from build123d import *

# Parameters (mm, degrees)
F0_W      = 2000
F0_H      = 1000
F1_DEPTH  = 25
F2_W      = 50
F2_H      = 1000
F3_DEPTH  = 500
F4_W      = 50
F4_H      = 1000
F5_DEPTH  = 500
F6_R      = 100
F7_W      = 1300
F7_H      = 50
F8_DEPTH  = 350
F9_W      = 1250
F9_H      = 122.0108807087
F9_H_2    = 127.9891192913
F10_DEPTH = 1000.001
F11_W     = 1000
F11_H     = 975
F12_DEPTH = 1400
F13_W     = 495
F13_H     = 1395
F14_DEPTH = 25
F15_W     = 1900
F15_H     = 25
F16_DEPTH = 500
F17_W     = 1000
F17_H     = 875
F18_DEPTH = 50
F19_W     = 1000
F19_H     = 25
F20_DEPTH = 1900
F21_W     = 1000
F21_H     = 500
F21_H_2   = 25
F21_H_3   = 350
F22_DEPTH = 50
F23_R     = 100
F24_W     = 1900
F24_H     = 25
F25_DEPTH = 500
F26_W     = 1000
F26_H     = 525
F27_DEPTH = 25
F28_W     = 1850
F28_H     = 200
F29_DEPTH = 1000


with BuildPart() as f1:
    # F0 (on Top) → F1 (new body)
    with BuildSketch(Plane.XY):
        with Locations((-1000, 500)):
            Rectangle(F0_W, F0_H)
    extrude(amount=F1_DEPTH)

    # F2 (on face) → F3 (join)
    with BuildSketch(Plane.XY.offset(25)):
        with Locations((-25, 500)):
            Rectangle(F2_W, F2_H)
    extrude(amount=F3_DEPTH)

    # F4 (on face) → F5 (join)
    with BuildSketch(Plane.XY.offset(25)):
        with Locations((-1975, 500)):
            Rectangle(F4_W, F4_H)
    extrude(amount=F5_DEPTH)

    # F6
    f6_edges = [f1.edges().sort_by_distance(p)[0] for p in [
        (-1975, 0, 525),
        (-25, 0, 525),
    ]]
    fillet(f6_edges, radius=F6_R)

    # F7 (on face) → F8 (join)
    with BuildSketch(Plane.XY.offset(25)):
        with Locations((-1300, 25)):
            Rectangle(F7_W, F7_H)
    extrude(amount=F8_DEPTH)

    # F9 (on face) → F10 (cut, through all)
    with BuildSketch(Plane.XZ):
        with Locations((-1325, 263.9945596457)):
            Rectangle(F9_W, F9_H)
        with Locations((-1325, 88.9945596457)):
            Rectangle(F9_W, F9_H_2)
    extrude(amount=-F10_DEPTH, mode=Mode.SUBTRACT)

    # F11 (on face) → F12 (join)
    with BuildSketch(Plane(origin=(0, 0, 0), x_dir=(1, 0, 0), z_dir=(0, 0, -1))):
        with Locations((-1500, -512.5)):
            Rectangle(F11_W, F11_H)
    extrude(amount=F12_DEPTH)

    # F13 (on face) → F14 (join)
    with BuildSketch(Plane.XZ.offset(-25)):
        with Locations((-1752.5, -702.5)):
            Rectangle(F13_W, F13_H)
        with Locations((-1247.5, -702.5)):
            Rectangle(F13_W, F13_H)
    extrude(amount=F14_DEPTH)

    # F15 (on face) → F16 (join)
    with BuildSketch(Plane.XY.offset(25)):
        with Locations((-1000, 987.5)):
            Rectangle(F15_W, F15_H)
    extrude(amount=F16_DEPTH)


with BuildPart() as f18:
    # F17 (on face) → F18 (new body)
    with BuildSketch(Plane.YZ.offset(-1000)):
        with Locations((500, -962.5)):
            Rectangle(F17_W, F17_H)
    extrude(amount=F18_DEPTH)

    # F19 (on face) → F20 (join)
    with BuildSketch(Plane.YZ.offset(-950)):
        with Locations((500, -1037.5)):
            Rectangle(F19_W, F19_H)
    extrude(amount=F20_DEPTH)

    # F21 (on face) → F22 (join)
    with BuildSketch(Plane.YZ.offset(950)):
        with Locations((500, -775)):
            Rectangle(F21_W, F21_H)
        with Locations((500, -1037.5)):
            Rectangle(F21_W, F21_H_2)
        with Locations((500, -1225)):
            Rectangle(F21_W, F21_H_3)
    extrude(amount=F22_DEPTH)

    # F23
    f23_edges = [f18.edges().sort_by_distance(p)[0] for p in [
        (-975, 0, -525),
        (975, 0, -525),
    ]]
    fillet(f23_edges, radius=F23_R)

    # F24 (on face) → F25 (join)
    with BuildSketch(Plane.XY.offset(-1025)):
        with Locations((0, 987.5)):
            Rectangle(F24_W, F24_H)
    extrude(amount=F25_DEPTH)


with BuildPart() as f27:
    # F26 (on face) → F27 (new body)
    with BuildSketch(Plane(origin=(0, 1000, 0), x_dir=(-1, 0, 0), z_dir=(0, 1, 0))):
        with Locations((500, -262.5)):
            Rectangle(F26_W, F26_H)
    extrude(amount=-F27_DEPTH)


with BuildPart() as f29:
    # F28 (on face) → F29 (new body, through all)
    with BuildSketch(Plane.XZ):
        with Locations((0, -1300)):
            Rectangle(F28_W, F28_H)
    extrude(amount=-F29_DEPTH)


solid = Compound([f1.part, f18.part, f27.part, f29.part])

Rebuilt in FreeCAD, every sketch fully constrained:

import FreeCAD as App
import Part
import Sketcher

V = App.Vector


def edges_at(feature, points):
    """Names of the edges that pass closest to the given points."""
    edges = feature.Shape.Edges
    near = lambda p: min(range(len(edges)), key=lambda i: edges[i].distToShape(Part.Vertex(*p))[0])
    return sorted({f"Edge{near(p) + 1}" for p in points})

doc = App.newDocument("Part")
body = doc.addObject("PartDesign::Body", "Body")

# Sketch on XY plane
sketch1 = doc.addObject("Sketcher::SketchObject", "Sketch")
body.addObject(sketch1)
sketch1.AttachmentSupport = (doc.XY_Plane, [""])
sketch1.MapMode = "FlatFace"
sketch1.addGeometry([
    Part.LineSegment(V(-2000, 1000, 0), V(-2000, 0, 0)),
    Part.LineSegment(V(-2000, 0, 0), V(0, 0, 0)),
    Part.LineSegment(V(0, 0, 0), V(0, 1000, 0)),
    Part.LineSegment(V(0, 1000, 0), V(-2000, 1000, 0)),
], False)
sketch1.addConstraint([
    Sketcher.Constraint("Coincident", 0, 2, 1, 1),
    Sketcher.Constraint("Coincident", 1, 2, 2, 1),
    Sketcher.Constraint("Coincident", 2, 2, 3, 1),
    Sketcher.Constraint("Coincident", 3, 2, 0, 1),
    Sketcher.Constraint("Vertical", 0),
    Sketcher.Constraint("Horizontal", 1),
    Sketcher.Constraint("Vertical", 2),
    Sketcher.Constraint("Horizontal", 3),
    Sketcher.Constraint("Coincident", 1, 2, -1, 1),
    Sketcher.Constraint("DistanceX", 1, 1, 1, 2, 2000.0),
    Sketcher.Constraint("DistanceY", 0, 2, 0, 1, 1000.0),
])
pad1 = doc.addObject("PartDesign::Pad", "Pad")
body.addObject(pad1)
pad1.Profile = sketch1
pad1.Length = 25

# Sketch on XY plane
sketch2 = doc.addObject("Sketcher::SketchObject", "Sketch001")
body.addObject(sketch2)
sketch2.AttachmentSupport = (doc.XY_Plane, [""])
sketch2.MapMode = "FlatFace"
sketch2.AttachmentOffset = App.Placement(V(0, 0, 25), App.Rotation())
sketch2.addGeometry([
    Part.LineSegment(V(-50, 1000, 0), V(-50, 0, 0)),
    Part.LineSegment(V(-50, 0, 0), V(0, 0, 0)),
    Part.LineSegment(V(0, 0, 0), V(0, 1000, 0)),
    Part.LineSegment(V(0, 1000, 0), V(-50, 1000, 0)),
], False)
sketch2.addConstraint([
    Sketcher.Constraint("Coincident", 0, 2, 1, 1),
    Sketcher.Constraint("Coincident", 1, 2, 2, 1),
    Sketcher.Constraint("Coincident", 2, 2, 3, 1),
    Sketcher.Constraint("Coincident", 3, 2, 0, 1),
    Sketcher.Constraint("Vertical", 0),
    Sketcher.Constraint("Horizontal", 1),
    Sketcher.Constraint("Vertical", 2),
    Sketcher.Constraint("Horizontal", 3),
    Sketcher.Constraint("Coincident", 1, 2, -1, 1),
    Sketcher.Constraint("DistanceX", 1, 1, 1, 2, 50.0),
    Sketcher.Constraint("DistanceY", 0, 2, 0, 1, 1000.0),
])
pad2 = doc.addObject("PartDesign::Pad", "Pad001")
body.addObject(pad2)
pad2.Profile = sketch2
pad2.Length = 500

# Sketch on XY plane
sketch3 = doc.addObject("Sketcher::SketchObject", "Sketch002")
body.addObject(sketch3)
sketch3.AttachmentSupport = (doc.XY_Plane, [""])
sketch3.MapMode = "FlatFace"
sketch3.AttachmentOffset = App.Placement(V(0, 0, 25), App.Rotation())
sketch3.addGeometry([
    Part.LineSegment(V(-2000, 1000, 0), V(-2000, 0, 0)),
    Part.LineSegment(V(-2000, 0, 0), V(-1950, 0, 0)),
    Part.LineSegment(V(-1950, 0, 0), V(-1950, 1000, 0)),
    Part.LineSegment(V(-1950, 1000, 0), V(-2000, 1000, 0)),
], False)
sketch3.addConstraint([
    Sketcher.Constraint("Coincident", 0, 2, 1, 1),
    Sketcher.Constraint("Coincident", 1, 2, 2, 1),
    Sketcher.Constraint("Coincident", 2, 2, 3, 1),
    Sketcher.Constraint("Coincident", 3, 2, 0, 1),
    Sketcher.Constraint("Vertical", 0),
    Sketcher.Constraint("Horizontal", 1),
    Sketcher.Constraint("Vertical", 2),
    Sketcher.Constraint("Horizontal", 3),
    Sketcher.Constraint("PointOnObject", 0, 2, -1),
    Sketcher.Constraint("DistanceX", 1, 1, 1, 2, 50.0),
    Sketcher.Constraint("DistanceY", 0, 2, 0, 1, 1000.0),
    Sketcher.Constraint("DistanceX", 0, 2, -1, 1, 2000.0),
])
pad3 = doc.addObject("PartDesign::Pad", "Pad002")
body.addObject(pad3)
pad3.Profile = sketch3
pad3.Length = 500
doc.recompute()

fillet = doc.addObject("PartDesign::Fillet", "Fillet")
body.addObject(fillet)
fillet.Base = (pad3, edges_at(pad3, [(-1975, 0, 525), (-25, 0, 525)]))
fillet.Radius = 100

# Sketch on XY plane
sketch4 = doc.addObject("Sketcher::SketchObject", "Sketch003")
body.addObject(sketch4)
sketch4.AttachmentSupport = (doc.XY_Plane, [""])
sketch4.MapMode = "FlatFace"
sketch4.AttachmentOffset = App.Placement(V(0, 0, 25), App.Rotation())
sketch4.addGeometry([
    Part.LineSegment(V(-1950, 50, 0), V(-1950, 0, 0)),
    Part.LineSegment(V(-1950, 0, 0), V(-650, 0, 0)),
    Part.LineSegment(V(-650, 0, 0), V(-650, 50, 0)),
    Part.LineSegment(V(-650, 50, 0), V(-1950, 50, 0)),
], False)
sketch4.addConstraint([
    Sketcher.Constraint("Coincident", 0, 2, 1, 1),
    Sketcher.Constraint("Coincident", 1, 2, 2, 1),
    Sketcher.Constraint("Coincident", 2, 2, 3, 1),
    Sketcher.Constraint("Coincident", 3, 2, 0, 1),
    Sketcher.Constraint("Vertical", 0),
    Sketcher.Constraint("Horizontal", 1),
    Sketcher.Constraint("Vertical", 2),
    Sketcher.Constraint("Horizontal", 3),
    Sketcher.Constraint("PointOnObject", 0, 2, -1),
    Sketcher.Constraint("DistanceX", 1, 1, 1, 2, 1300.0),
    Sketcher.Constraint("DistanceY", 0, 2, 0, 1, 50.0),
    Sketcher.Constraint("DistanceX", 0, 2, -1, 1, 1950.0),
])
pad4 = doc.addObject("PartDesign::Pad", "Pad003")
body.addObject(pad4)
pad4.Profile = sketch4
pad4.Length = 350

# Sketch on XZ plane
sketch5 = doc.addObject("Sketcher::SketchObject", "Sketch004")
body.addObject(sketch5)
sketch5.AttachmentSupport = (doc.XZ_Plane, [""])
sketch5.MapMode = "FlatFace"
sketch5.addGeometry([
    Part.LineSegment(V(-1950, 325, 0), V(-1950, 203, 0)),  # 0
    Part.LineSegment(V(-1950, 203, 0), V(-700, 203, 0)),  # 1
    Part.LineSegment(V(-700, 203, 0), V(-700, 325, 0)),  # 2
    Part.LineSegment(V(-700, 325, 0), V(-1950, 325, 0)),  # 3
    Part.LineSegment(V(-1950, 153, 0), V(-1950, 25, 0)),  # 4
    Part.LineSegment(V(-1950, 25, 0), V(-700, 25, 0)),  # 5
    Part.LineSegment(V(-700, 25, 0), V(-700, 153, 0)),  # 6
    Part.LineSegment(V(-700, 153, 0), V(-1950, 153, 0)),  # 7
], False)
sketch5.addConstraint([
    Sketcher.Constraint("Coincident", 0, 2, 1, 1),
    Sketcher.Constraint("Coincident", 1, 2, 2, 1),
    Sketcher.Constraint("Coincident", 2, 2, 3, 1),
    Sketcher.Constraint("Coincident", 3, 2, 0, 1),
    Sketcher.Constraint("Coincident", 4, 2, 5, 1),
    Sketcher.Constraint("Coincident", 5, 2, 6, 1),
    Sketcher.Constraint("Coincident", 6, 2, 7, 1),
    Sketcher.Constraint("Coincident", 7, 2, 4, 1),
    Sketcher.Constraint("Vertical", 0),
    Sketcher.Constraint("Horizontal", 1),
    Sketcher.Constraint("Vertical", 2),
    Sketcher.Constraint("Horizontal", 3),
    Sketcher.Constraint("Vertical", 4),
    Sketcher.Constraint("Horizontal", 5),
    Sketcher.Constraint("Vertical", 6),
    Sketcher.Constraint("Horizontal", 7),
    Sketcher.Constraint("Vertical", 3, 2, 4, 2),
    Sketcher.Constraint("Vertical", 2, 2, 5, 2),
    Sketcher.Constraint("DistanceX", 1, 1, 1, 2, 1250.0),
    Sketcher.Constraint("DistanceX", 0, 2, -1, 1, 1950.0),
    Sketcher.Constraint("DistanceY", -1, 1, 2, 2, 325.0),
    Sketcher.Constraint("DistanceY", -1, 1, 4, 2, 25.0),
    Sketcher.Constraint("DistanceY", 6, 2, 1, 2, 50.0),
    Sketcher.Constraint("DistanceY", 0, 2, 0, 1, 122.010881),
])
pocket1 = doc.addObject("PartDesign::Pocket", "Pocket")
body.addObject(pocket1)
pocket1.Profile = sketch5
pocket1.Type = "ThroughAll"

# Sketch on XY plane
sketch6 = doc.addObject("Sketcher::SketchObject", "Sketch005")
body.addObject(sketch6)
sketch6.AttachmentSupport = (doc.XY_Plane, [""])
sketch6.MapMode = "FlatFace"
sketch6.addGeometry([
    Part.LineSegment(V(-2000, 25, 0), V(-2000, 1000, 0)),
    Part.LineSegment(V(-2000, 1000, 0), V(-1000, 1000, 0)),
    Part.LineSegment(V(-1000, 1000, 0), V(-1000, 25, 0)),
    Part.LineSegment(V(-1000, 25, 0), V(-2000, 25, 0)),
], False)
sketch6.addConstraint([
    Sketcher.Constraint("Coincident", 0, 2, 1, 1),
    Sketcher.Constraint("Coincident", 1, 2, 2, 1),
    Sketcher.Constraint("Coincident", 2, 2, 3, 1),
    Sketcher.Constraint("Coincident", 3, 2, 0, 1),
    Sketcher.Constraint("Vertical", 0),
    Sketcher.Constraint("Horizontal", 1),
    Sketcher.Constraint("Vertical", 2),
    Sketcher.Constraint("Horizontal", 3),
    Sketcher.Constraint("DistanceX", 1, 1, 1, 2, 1000.0),
    Sketcher.Constraint("DistanceY", 0, 1, 0, 2, 975.0),
    Sketcher.Constraint("DistanceX", 0, 2, -1, 1, 2000.0),
    Sketcher.Constraint("DistanceY", -1, 1, 0, 2, 1000.0),
])
pad5 = doc.addObject("PartDesign::Pad", "Pad004")
body.addObject(pad5)
pad5.Profile = sketch6
pad5.Length = 1400
pad5.Reversed = True

# Sketch on XZ plane
sketch7 = doc.addObject("Sketcher::SketchObject", "Sketch006")
body.addObject(sketch7)
sketch7.AttachmentSupport = (doc.XZ_Plane, [""])
sketch7.MapMode = "FlatFace"
sketch7.AttachmentOffset = App.Placement(V(0, 0, -25), App.Rotation())
sketch7.addGeometry([
    Part.LineSegment(V(-2000, -5, 0), V(-2000, -1400, 0)),  # 0
    Part.LineSegment(V(-2000, -1400, 0), V(-1505, -1400, 0)),  # 1
    Part.LineSegment(V(-1505, -1400, 0), V(-1505, -5, 0)),  # 2
    Part.LineSegment(V(-1505, -5, 0), V(-2000, -5, 0)),  # 3
    Part.LineSegment(V(-1495, -5, 0), V(-1495, -1400, 0)),  # 4
    Part.LineSegment(V(-1495, -1400, 0), V(-1000, -1400, 0)),  # 5
    Part.LineSegment(V(-1000, -1400, 0), V(-1000, -5, 0)),  # 6
    Part.LineSegment(V(-1000, -5, 0), V(-1495, -5, 0)),  # 7
], False)
sketch7.addConstraint([
    Sketcher.Constraint("Coincident", 0, 2, 1, 1),
    Sketcher.Constraint("Coincident", 1, 2, 2, 1),
    Sketcher.Constraint("Coincident", 2, 2, 3, 1),
    Sketcher.Constraint("Coincident", 3, 2, 0, 1),
    Sketcher.Constraint("Coincident", 4, 2, 5, 1),
    Sketcher.Constraint("Coincident", 5, 2, 6, 1),
    Sketcher.Constraint("Coincident", 6, 2, 7, 1),
    Sketcher.Constraint("Coincident", 7, 2, 4, 1),
    Sketcher.Constraint("Vertical", 0),
    Sketcher.Constraint("Horizontal", 1),
    Sketcher.Constraint("Vertical", 2),
    Sketcher.Constraint("Horizontal", 3),
    Sketcher.Constraint("Vertical", 4),
    Sketcher.Constraint("Horizontal", 5),
    Sketcher.Constraint("Vertical", 6),
    Sketcher.Constraint("Horizontal", 7),
    Sketcher.Constraint("Horizontal", 1, 2, 4, 2),
    Sketcher.Constraint("Horizontal", 3, 2, 6, 2),
    Sketcher.Constraint("Equal", 3, 5),
    Sketcher.Constraint("DistanceX", 1, 1, 1, 2, 495.0),
    Sketcher.Constraint("DistanceY", 0, 2, 0, 1, 1395.0),
    Sketcher.Constraint("DistanceX", 0, 2, -1, 1, 2000.0),
    Sketcher.Constraint("DistanceY", 0, 2, -1, 1, 1400.0),
    Sketcher.Constraint("DistanceX", 4, 2, -1, 1, 1495.0),
])
pad6 = doc.addObject("PartDesign::Pad", "Pad005")
body.addObject(pad6)
pad6.Profile = sketch7
pad6.Length = 25

# Sketch on XY plane
sketch8 = doc.addObject("Sketcher::SketchObject", "Sketch007")
body.addObject(sketch8)
sketch8.AttachmentSupport = (doc.XY_Plane, [""])
sketch8.MapMode = "FlatFace"
sketch8.AttachmentOffset = App.Placement(V(0, 0, 25), App.Rotation())
sketch8.addGeometry([
    Part.LineSegment(V(-1950, 1000, 0), V(-1950, 975, 0)),
    Part.LineSegment(V(-1950, 975, 0), V(-50, 975, 0)),
    Part.LineSegment(V(-50, 975, 0), V(-50, 1000, 0)),
    Part.LineSegment(V(-50, 1000, 0), V(-1950, 1000, 0)),
], False)
sketch8.addConstraint([
    Sketcher.Constraint("Coincident", 0, 2, 1, 1),
    Sketcher.Constraint("Coincident", 1, 2, 2, 1),
    Sketcher.Constraint("Coincident", 2, 2, 3, 1),
    Sketcher.Constraint("Coincident", 3, 2, 0, 1),
    Sketcher.Constraint("Vertical", 0),
    Sketcher.Constraint("Horizontal", 1),
    Sketcher.Constraint("Vertical", 2),
    Sketcher.Constraint("Horizontal", 3),
    Sketcher.Constraint("DistanceX", 1, 1, 1, 2, 1900.0),
    Sketcher.Constraint("DistanceY", 0, 2, 0, 1, 25.0),
    Sketcher.Constraint("DistanceX", 0, 2, -1, 1, 1950.0),
    Sketcher.Constraint("DistanceY", -1, 1, 0, 2, 975.0),
])
pad7 = doc.addObject("PartDesign::Pad", "Pad006")
body.addObject(pad7)
pad7.Profile = sketch8
pad7.Length = 500
body2 = doc.addObject("PartDesign::Body", "Body001")

# Sketch on YZ plane
sketch9 = doc.addObject("Sketcher::SketchObject", "Sketch008")
body2.addObject(sketch9)
sketch9.AttachmentSupport = (doc.getObject("YZ_Plane001"), [""])
sketch9.MapMode = "FlatFace"
sketch9.AttachmentOffset = App.Placement(V(0, 0, -1000), App.Rotation())
sketch9.addGeometry([
    Part.LineSegment(V(0, -525, 0), V(0, -1400, 0)),
    Part.LineSegment(V(0, -1400, 0), V(1000, -1400, 0)),
    Part.LineSegment(V(1000, -1400, 0), V(1000, -525, 0)),
    Part.LineSegment(V(1000, -525, 0), V(0, -525, 0)),
], False)
sketch9.addConstraint([
    Sketcher.Constraint("Coincident", 0, 2, 1, 1),
    Sketcher.Constraint("Coincident", 1, 2, 2, 1),
    Sketcher.Constraint("Coincident", 2, 2, 3, 1),
    Sketcher.Constraint("Coincident", 3, 2, 0, 1),
    Sketcher.Constraint("Vertical", 0),
    Sketcher.Constraint("Horizontal", 1),
    Sketcher.Constraint("Vertical", 2),
    Sketcher.Constraint("Horizontal", 3),
    Sketcher.Constraint("PointOnObject", 0, 2, -2),
    Sketcher.Constraint("DistanceX", 1, 1, 1, 2, 1000.0),
    Sketcher.Constraint("DistanceY", 0, 2, 0, 1, 875.0),
    Sketcher.Constraint("DistanceY", 0, 2, -1, 1, 1400.0),
])
pad8 = doc.addObject("PartDesign::Pad", "Pad007")
body2.addObject(pad8)
pad8.Profile = sketch9
pad8.Length = 50

# Sketch on YZ plane
sketch10 = doc.addObject("Sketcher::SketchObject", "Sketch009")
body2.addObject(sketch10)
sketch10.AttachmentSupport = (doc.getObject("YZ_Plane001"), [""])
sketch10.MapMode = "FlatFace"
sketch10.AttachmentOffset = App.Placement(V(0, 0, -950), App.Rotation())
sketch10.addGeometry([
    Part.LineSegment(V(0, -1025, 0), V(0, -1050, 0)),
    Part.LineSegment(V(0, -1050, 0), V(1000, -1050, 0)),
    Part.LineSegment(V(1000, -1050, 0), V(1000, -1025, 0)),
    Part.LineSegment(V(1000, -1025, 0), V(0, -1025, 0)),
], False)
sketch10.addConstraint([
    Sketcher.Constraint("Coincident", 0, 2, 1, 1),
    Sketcher.Constraint("Coincident", 1, 2, 2, 1),
    Sketcher.Constraint("Coincident", 2, 2, 3, 1),
    Sketcher.Constraint("Coincident", 3, 2, 0, 1),
    Sketcher.Constraint("Vertical", 0),
    Sketcher.Constraint("Horizontal", 1),
    Sketcher.Constraint("Vertical", 2),
    Sketcher.Constraint("Horizontal", 3),
    Sketcher.Constraint("PointOnObject", 0, 2, -2),
    Sketcher.Constraint("DistanceX", 1, 1, 1, 2, 1000.0),
    Sketcher.Constraint("DistanceY", 0, 2, 0, 1, 25.0),
    Sketcher.Constraint("DistanceY", 0, 2, -1, 1, 1050.0),
])
pad9 = doc.addObject("PartDesign::Pad", "Pad008")
body2.addObject(pad9)
pad9.Profile = sketch10
pad9.Length = 1900

# Sketch on YZ plane
sketch11 = doc.addObject("Sketcher::SketchObject", "Sketch010")
body2.addObject(sketch11)
sketch11.AttachmentSupport = (doc.getObject("YZ_Plane001"), [""])
sketch11.MapMode = "FlatFace"
sketch11.AttachmentOffset = App.Placement(V(0, 0, 950), App.Rotation())
sketch11.addGeometry([
    Part.LineSegment(V(0, -525, 0), V(0, -1400, 0)),
    Part.LineSegment(V(0, -1400, 0), V(1000, -1400, 0)),
    Part.LineSegment(V(1000, -1400, 0), V(1000, -525, 0)),
    Part.LineSegment(V(1000, -525, 0), V(0, -525, 0)),
], False)
sketch11.addConstraint([
    Sketcher.Constraint("Coincident", 0, 2, 1, 1),
    Sketcher.Constraint("Coincident", 1, 2, 2, 1),
    Sketcher.Constraint("Coincident", 2, 2, 3, 1),
    Sketcher.Constraint("Coincident", 3, 2, 0, 1),
    Sketcher.Constraint("Vertical", 0),
    Sketcher.Constraint("Horizontal", 1),
    Sketcher.Constraint("Vertical", 2),
    Sketcher.Constraint("Horizontal", 3),
    Sketcher.Constraint("PointOnObject", 0, 2, -2),
    Sketcher.Constraint("DistanceX", 1, 1, 1, 2, 1000.0),
    Sketcher.Constraint("DistanceY", 0, 2, 0, 1, 875.0),
    Sketcher.Constraint("DistanceY", 0, 2, -1, 1, 1400.0),
])
pad10 = doc.addObject("PartDesign::Pad", "Pad009")
body2.addObject(pad10)
pad10.Profile = sketch11
pad10.Length = 50
doc.recompute()

fillet2 = doc.addObject("PartDesign::Fillet", "Fillet001")
body2.addObject(fillet2)
fillet2.Base = (pad10, edges_at(pad10, [(-975, 0, -525), (975, 0, -525)]))
fillet2.Radius = 100

# Sketch on XY plane
sketch12 = doc.addObject("Sketcher::SketchObject", "Sketch011")
body2.addObject(sketch12)
sketch12.AttachmentSupport = (doc.getObject("XY_Plane001"), [""])
sketch12.MapMode = "FlatFace"
sketch12.AttachmentOffset = App.Placement(V(0, 0, -1025), App.Rotation())
sketch12.addGeometry([
    Part.LineSegment(V(-950, 1000, 0), V(-950, 975, 0)),
    Part.LineSegment(V(-950, 975, 0), V(950, 975, 0)),
    Part.LineSegment(V(950, 975, 0), V(950, 1000, 0)),
    Part.LineSegment(V(950, 1000, 0), V(-950, 1000, 0)),
], False)
sketch12.addConstraint([
    Sketcher.Constraint("Coincident", 0, 2, 1, 1),
    Sketcher.Constraint("Coincident", 1, 2, 2, 1),
    Sketcher.Constraint("Coincident", 2, 2, 3, 1),
    Sketcher.Constraint("Coincident", 3, 2, 0, 1),
    Sketcher.Constraint("Vertical", 0),
    Sketcher.Constraint("Horizontal", 1),
    Sketcher.Constraint("Vertical", 2),
    Sketcher.Constraint("Horizontal", 3),
    Sketcher.Constraint("DistanceX", 1, 1, 1, 2, 1900.0),
    Sketcher.Constraint("DistanceY", 0, 2, 0, 1, 25.0),
    Sketcher.Constraint("DistanceX", 0, 2, -1, 1, 950.0),
    Sketcher.Constraint("DistanceY", -1, 1, 0, 2, 975.0),
])
pad11 = doc.addObject("PartDesign::Pad", "Pad010")
body2.addObject(pad11)
pad11.Profile = sketch12
pad11.Length = 500
body3 = doc.addObject("PartDesign::Body", "Body002")

# Sketch on XZ plane
sketch13 = doc.addObject("Sketcher::SketchObject", "Sketch012")
body3.addObject(sketch13)
sketch13.AttachmentSupport = (doc.getObject("XZ_Plane002"), [""])
sketch13.MapMode = "FlatFace"
sketch13.AttachmentOffset = App.Placement(V(0, 0, -1000), App.Rotation())
sketch13.addGeometry([
    Part.LineSegment(V(0, 0, 0), V(0, -525, 0)),
    Part.LineSegment(V(0, -525, 0), V(-1000, -525, 0)),
    Part.LineSegment(V(-1000, -525, 0), V(-1000, 0, 0)),
    Part.LineSegment(V(-1000, 0, 0), V(0, 0, 0)),
], False)
sketch13.addConstraint([
    Sketcher.Constraint("Coincident", 0, 2, 1, 1),
    Sketcher.Constraint("Coincident", 1, 2, 2, 1),
    Sketcher.Constraint("Coincident", 2, 2, 3, 1),
    Sketcher.Constraint("Coincident", 3, 2, 0, 1),
    Sketcher.Constraint("Vertical", 0),
    Sketcher.Constraint("Horizontal", 1),
    Sketcher.Constraint("Vertical", 2),
    Sketcher.Constraint("Horizontal", 3),
    Sketcher.Constraint("Coincident", 3, 2, -1, 1),
    Sketcher.Constraint("DistanceX", 1, 2, 1, 1, 1000.0),
    Sketcher.Constraint("DistanceY", 0, 2, 0, 1, 525.0),
])
pad12 = doc.addObject("PartDesign::Pad", "Pad011")
body3.addObject(pad12)
pad12.Profile = sketch13
pad12.Length = 25
body4 = doc.addObject("PartDesign::Body", "Body003")

# Sketch on XZ plane
sketch14 = doc.addObject("Sketcher::SketchObject", "Sketch013")
body4.addObject(sketch14)
sketch14.AttachmentSupport = (doc.getObject("XZ_Plane003"), [""])
sketch14.MapMode = "FlatFace"
sketch14.addGeometry([
    Part.LineSegment(V(-925, -1200, 0), V(-925, -1400, 0)),
    Part.LineSegment(V(-925, -1400, 0), V(925, -1400, 0)),
    Part.LineSegment(V(925, -1400, 0), V(925, -1200, 0)),
    Part.LineSegment(V(925, -1200, 0), V(-925, -1200, 0)),
], False)
sketch14.addConstraint([
    Sketcher.Constraint("Coincident", 0, 2, 1, 1),
    Sketcher.Constraint("Coincident", 1, 2, 2, 1),
    Sketcher.Constraint("Coincident", 2, 2, 3, 1),
    Sketcher.Constraint("Coincident", 3, 2, 0, 1),
    Sketcher.Constraint("Vertical", 0),
    Sketcher.Constraint("Horizontal", 1),
    Sketcher.Constraint("Vertical", 2),
    Sketcher.Constraint("Horizontal", 3),
    Sketcher.Constraint("DistanceX", 1, 1, 1, 2, 1850.0),
    Sketcher.Constraint("DistanceY", 0, 2, 0, 1, 200.0),
    Sketcher.Constraint("DistanceX", 0, 2, -1, 1, 925.0),
    Sketcher.Constraint("DistanceY", 0, 2, -1, 1, 1400.0),
])
pad13 = doc.addObject("PartDesign::Pad", "Pad012")
body4.addObject(pad13)
pad13.Profile = sketch14
pad13.Length = 1000
pad13.Reversed = True

doc.recompute()
